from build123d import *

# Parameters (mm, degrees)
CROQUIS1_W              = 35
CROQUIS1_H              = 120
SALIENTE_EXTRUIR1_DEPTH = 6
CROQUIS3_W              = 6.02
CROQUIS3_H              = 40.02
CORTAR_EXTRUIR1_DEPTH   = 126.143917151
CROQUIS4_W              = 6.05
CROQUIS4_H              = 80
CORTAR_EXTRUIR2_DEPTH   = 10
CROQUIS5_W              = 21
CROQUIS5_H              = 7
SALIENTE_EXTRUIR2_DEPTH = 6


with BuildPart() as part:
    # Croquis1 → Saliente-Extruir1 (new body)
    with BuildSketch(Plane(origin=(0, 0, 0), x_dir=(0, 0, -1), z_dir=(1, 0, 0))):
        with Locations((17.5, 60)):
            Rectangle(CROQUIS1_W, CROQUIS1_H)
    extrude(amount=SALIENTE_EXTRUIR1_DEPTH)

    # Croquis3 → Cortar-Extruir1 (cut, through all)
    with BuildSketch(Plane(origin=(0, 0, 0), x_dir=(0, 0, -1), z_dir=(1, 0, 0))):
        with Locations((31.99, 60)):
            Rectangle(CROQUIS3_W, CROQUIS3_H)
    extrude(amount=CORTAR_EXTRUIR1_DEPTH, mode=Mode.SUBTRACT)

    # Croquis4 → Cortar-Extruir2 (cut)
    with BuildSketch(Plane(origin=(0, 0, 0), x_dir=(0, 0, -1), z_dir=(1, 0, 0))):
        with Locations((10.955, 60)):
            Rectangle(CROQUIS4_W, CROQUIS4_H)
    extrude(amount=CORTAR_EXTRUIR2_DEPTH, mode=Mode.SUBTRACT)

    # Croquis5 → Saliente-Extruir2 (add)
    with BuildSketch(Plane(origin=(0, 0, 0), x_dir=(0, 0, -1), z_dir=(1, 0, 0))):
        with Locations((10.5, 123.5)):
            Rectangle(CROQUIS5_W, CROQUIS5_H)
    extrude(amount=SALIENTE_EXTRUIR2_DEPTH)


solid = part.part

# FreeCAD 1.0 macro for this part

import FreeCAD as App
import Part
import Sketcher

doc = App.newDocument("Part")
body = doc.addObject("PartDesign::Body", "Body")

sketch1 = body.newObject("Sketcher::SketchObject", "Sketch")
sketch1.AttachmentSupport = (doc.getObject("YZ_Plane"), [""])
sketch1.MapMode = "FlatFace"
sketch1.addGeometry([
    Part.LineSegment(App.Vector(120, 0, 0), App.Vector(0, 0, 0)),
    Part.LineSegment(App.Vector(0, 0, 0), App.Vector(0, -35, 0)),
    Part.LineSegment(App.Vector(0, -35, 0), App.Vector(120, -35, 0)),
    Part.LineSegment(App.Vector(120, -35, 0), App.Vector(120, 0, 0)),
], False)
sketch1.addConstraint([
    Sketcher.Constraint("Coincident", 0, 2, 1, 1),
    Sketcher.Constraint("Coincident", 1, 2, 2, 1),
    Sketcher.Constraint("Coincident", 2, 2, 3, 1),
    Sketcher.Constraint("Coincident", 3, 2, 0, 1),
    Sketcher.Constraint("Horizontal", 0),
    Sketcher.Constraint("Vertical", 1),
    Sketcher.Constraint("Horizontal", 2),
    Sketcher.Constraint("Vertical", 3),
    Sketcher.Constraint("Coincident", 0, 2, -1, 1),
    Sketcher.Constraint("DistanceX", 0, 2, 0, 1, 120.0),
    Sketcher.Constraint("DistanceY", 1, 2, 1, 1, 35.0),
])
pad1 = body.newObject("PartDesign::Pad", "Pad")
pad1.Profile = sketch1
pad1.Length = 6

sketch2 = body.newObject("Sketcher::SketchObject", "Sketch001")
sketch2.AttachmentSupport = (doc.getObject("YZ_Plane"), [""])
sketch2.MapMode = "FlatFace"
sketch2.addGeometry([
    Part.LineSegment(App.Vector(80, -29, 0), App.Vector(40, -29, 0)),
    Part.LineSegment(App.Vector(40, -29, 0), App.Vector(40, -35, 0)),
    Part.LineSegment(App.Vector(40, -35, 0), App.Vector(80, -35, 0)),
    Part.LineSegment(App.Vector(80, -35, 0), App.Vector(80, -29, 0)),
], False)
sketch2.addConstraint([
    Sketcher.Constraint("Coincident", 0, 2, 1, 1),
    Sketcher.Constraint("Coincident", 1, 2, 2, 1),
    Sketcher.Constraint("Coincident", 2, 2, 3, 1),
    Sketcher.Constraint("Coincident", 3, 2, 0, 1),
    Sketcher.Constraint("Horizontal", 0),
    Sketcher.Constraint("Vertical", 1),
    Sketcher.Constraint("Horizontal", 2),
    Sketcher.Constraint("Vertical", 3),
    Sketcher.Constraint("DistanceY", 1, 2, -1, 1, 35.0),
    Sketcher.Constraint("DistanceX", 0, 2, 0, 1, 40.02),
    Sketcher.Constraint("DistanceY", 1, 2, 1, 1, 6.02),
    Sketcher.Constraint("DistanceX", -1, 1, 0, 2, 39.99),
])
pocket1 = body.newObject("PartDesign::Pocket", "Pocket")
pocket1.Profile = sketch2
pocket1.Type = "ThroughAll"
pocket1.Reversed = True

sketch3 = body.newObject("Sketcher::SketchObject", "Sketch002")
sketch3.AttachmentSupport = (doc.getObject("YZ_Plane"), [""])
sketch3.MapMode = "FlatFace"
sketch3.addGeometry([
    Part.LineSegment(App.Vector(100, -8, 0), App.Vector(20, -8, 0)),
    Part.LineSegment(App.Vector(20, -8, 0), App.Vector(20, -14, 0)),
    Part.LineSegment(App.Vector(20, -14, 0), App.Vector(100, -14, 0)),
    Part.LineSegment(App.Vector(100, -14, 0), App.Vector(100, -8, 0)),
], False)
sketch3.addConstraint([
    Sketcher.Constraint("Coincident", 0, 2, 1, 1),
    Sketcher.Constraint("Coincident", 1, 2, 2, 1),
    Sketcher.Constraint("Coincident", 2, 2, 3, 1),
    Sketcher.Constraint("Coincident", 3, 2, 0, 1),
    Sketcher.Constraint("Horizontal", 0),
    Sketcher.Constraint("Vertical", 1),
    Sketcher.Constraint("Horizontal", 2),
    Sketcher.Constraint("Vertical", 3),
    Sketcher.Constraint("DistanceX", 0, 2, 0, 1, 80.0),
    Sketcher.Constraint("DistanceX", -1, 1, 0, 2, 20.0),
    Sketcher.Constraint("DistanceY", 1, 2, 1, 1, 6.05),
    Sketcher.Constraint("DistanceY", 0, 2, -1, 1, 7.93),
])
pocket2 = body.newObject("PartDesign::Pocket", "Pocket001")
pocket2.Profile = sketch3
pocket2.Length = 10
pocket2.Reversed = True

sketch4 = body.newObject("Sketcher::SketchObject", "Sketch003")
sketch4.AttachmentSupport = (doc.getObject("YZ_Plane"), [""])
sketch4.MapMode = "FlatFace"
sketch4.addGeometry([
    Part.LineSegment(App.Vector(127, 0, 0), App.Vector(120, 0, 0)),
    Part.LineSegment(App.Vector(120, 0, 0), App.Vector(120, -21, 0)),
    Part.LineSegment(App.Vector(120, -21, 0), App.Vector(127, -21, 0)),
    Part.LineSegment(App.Vector(127, -21, 0), App.Vector(127, 0, 0)),
], False)
sketch4.addConstraint([
    Sketcher.Constraint("Coincident", 0, 2, 1, 1),
    Sketcher.Constraint("Coincident", 1, 2, 2, 1),
    Sketcher.Constraint("Coincident", 2, 2, 3, 1),
    Sketcher.Constraint("Coincident", 3, 2, 0, 1),
    Sketcher.Constraint("Horizontal", 0),
    Sketcher.Constraint("Vertical", 1),
    Sketcher.Constraint("Horizontal", 2),
    Sketcher.Constraint("Vertical", 3),
    Sketcher.Constraint("PointOnObject", 0, 2, -1),
    Sketcher.Constraint("DistanceX", 0, 2, 0, 1, 7.0),
    Sketcher.Constraint("DistanceY", 1, 2, 1, 1, 21.0),
    Sketcher.Constraint("DistanceX", -1, 1, 0, 2, 120.0),
])
pad2 = body.newObject("PartDesign::Pad", "Pad001")
pad2.Profile = sketch4
pad2.Length = 6

doc.recompute()
